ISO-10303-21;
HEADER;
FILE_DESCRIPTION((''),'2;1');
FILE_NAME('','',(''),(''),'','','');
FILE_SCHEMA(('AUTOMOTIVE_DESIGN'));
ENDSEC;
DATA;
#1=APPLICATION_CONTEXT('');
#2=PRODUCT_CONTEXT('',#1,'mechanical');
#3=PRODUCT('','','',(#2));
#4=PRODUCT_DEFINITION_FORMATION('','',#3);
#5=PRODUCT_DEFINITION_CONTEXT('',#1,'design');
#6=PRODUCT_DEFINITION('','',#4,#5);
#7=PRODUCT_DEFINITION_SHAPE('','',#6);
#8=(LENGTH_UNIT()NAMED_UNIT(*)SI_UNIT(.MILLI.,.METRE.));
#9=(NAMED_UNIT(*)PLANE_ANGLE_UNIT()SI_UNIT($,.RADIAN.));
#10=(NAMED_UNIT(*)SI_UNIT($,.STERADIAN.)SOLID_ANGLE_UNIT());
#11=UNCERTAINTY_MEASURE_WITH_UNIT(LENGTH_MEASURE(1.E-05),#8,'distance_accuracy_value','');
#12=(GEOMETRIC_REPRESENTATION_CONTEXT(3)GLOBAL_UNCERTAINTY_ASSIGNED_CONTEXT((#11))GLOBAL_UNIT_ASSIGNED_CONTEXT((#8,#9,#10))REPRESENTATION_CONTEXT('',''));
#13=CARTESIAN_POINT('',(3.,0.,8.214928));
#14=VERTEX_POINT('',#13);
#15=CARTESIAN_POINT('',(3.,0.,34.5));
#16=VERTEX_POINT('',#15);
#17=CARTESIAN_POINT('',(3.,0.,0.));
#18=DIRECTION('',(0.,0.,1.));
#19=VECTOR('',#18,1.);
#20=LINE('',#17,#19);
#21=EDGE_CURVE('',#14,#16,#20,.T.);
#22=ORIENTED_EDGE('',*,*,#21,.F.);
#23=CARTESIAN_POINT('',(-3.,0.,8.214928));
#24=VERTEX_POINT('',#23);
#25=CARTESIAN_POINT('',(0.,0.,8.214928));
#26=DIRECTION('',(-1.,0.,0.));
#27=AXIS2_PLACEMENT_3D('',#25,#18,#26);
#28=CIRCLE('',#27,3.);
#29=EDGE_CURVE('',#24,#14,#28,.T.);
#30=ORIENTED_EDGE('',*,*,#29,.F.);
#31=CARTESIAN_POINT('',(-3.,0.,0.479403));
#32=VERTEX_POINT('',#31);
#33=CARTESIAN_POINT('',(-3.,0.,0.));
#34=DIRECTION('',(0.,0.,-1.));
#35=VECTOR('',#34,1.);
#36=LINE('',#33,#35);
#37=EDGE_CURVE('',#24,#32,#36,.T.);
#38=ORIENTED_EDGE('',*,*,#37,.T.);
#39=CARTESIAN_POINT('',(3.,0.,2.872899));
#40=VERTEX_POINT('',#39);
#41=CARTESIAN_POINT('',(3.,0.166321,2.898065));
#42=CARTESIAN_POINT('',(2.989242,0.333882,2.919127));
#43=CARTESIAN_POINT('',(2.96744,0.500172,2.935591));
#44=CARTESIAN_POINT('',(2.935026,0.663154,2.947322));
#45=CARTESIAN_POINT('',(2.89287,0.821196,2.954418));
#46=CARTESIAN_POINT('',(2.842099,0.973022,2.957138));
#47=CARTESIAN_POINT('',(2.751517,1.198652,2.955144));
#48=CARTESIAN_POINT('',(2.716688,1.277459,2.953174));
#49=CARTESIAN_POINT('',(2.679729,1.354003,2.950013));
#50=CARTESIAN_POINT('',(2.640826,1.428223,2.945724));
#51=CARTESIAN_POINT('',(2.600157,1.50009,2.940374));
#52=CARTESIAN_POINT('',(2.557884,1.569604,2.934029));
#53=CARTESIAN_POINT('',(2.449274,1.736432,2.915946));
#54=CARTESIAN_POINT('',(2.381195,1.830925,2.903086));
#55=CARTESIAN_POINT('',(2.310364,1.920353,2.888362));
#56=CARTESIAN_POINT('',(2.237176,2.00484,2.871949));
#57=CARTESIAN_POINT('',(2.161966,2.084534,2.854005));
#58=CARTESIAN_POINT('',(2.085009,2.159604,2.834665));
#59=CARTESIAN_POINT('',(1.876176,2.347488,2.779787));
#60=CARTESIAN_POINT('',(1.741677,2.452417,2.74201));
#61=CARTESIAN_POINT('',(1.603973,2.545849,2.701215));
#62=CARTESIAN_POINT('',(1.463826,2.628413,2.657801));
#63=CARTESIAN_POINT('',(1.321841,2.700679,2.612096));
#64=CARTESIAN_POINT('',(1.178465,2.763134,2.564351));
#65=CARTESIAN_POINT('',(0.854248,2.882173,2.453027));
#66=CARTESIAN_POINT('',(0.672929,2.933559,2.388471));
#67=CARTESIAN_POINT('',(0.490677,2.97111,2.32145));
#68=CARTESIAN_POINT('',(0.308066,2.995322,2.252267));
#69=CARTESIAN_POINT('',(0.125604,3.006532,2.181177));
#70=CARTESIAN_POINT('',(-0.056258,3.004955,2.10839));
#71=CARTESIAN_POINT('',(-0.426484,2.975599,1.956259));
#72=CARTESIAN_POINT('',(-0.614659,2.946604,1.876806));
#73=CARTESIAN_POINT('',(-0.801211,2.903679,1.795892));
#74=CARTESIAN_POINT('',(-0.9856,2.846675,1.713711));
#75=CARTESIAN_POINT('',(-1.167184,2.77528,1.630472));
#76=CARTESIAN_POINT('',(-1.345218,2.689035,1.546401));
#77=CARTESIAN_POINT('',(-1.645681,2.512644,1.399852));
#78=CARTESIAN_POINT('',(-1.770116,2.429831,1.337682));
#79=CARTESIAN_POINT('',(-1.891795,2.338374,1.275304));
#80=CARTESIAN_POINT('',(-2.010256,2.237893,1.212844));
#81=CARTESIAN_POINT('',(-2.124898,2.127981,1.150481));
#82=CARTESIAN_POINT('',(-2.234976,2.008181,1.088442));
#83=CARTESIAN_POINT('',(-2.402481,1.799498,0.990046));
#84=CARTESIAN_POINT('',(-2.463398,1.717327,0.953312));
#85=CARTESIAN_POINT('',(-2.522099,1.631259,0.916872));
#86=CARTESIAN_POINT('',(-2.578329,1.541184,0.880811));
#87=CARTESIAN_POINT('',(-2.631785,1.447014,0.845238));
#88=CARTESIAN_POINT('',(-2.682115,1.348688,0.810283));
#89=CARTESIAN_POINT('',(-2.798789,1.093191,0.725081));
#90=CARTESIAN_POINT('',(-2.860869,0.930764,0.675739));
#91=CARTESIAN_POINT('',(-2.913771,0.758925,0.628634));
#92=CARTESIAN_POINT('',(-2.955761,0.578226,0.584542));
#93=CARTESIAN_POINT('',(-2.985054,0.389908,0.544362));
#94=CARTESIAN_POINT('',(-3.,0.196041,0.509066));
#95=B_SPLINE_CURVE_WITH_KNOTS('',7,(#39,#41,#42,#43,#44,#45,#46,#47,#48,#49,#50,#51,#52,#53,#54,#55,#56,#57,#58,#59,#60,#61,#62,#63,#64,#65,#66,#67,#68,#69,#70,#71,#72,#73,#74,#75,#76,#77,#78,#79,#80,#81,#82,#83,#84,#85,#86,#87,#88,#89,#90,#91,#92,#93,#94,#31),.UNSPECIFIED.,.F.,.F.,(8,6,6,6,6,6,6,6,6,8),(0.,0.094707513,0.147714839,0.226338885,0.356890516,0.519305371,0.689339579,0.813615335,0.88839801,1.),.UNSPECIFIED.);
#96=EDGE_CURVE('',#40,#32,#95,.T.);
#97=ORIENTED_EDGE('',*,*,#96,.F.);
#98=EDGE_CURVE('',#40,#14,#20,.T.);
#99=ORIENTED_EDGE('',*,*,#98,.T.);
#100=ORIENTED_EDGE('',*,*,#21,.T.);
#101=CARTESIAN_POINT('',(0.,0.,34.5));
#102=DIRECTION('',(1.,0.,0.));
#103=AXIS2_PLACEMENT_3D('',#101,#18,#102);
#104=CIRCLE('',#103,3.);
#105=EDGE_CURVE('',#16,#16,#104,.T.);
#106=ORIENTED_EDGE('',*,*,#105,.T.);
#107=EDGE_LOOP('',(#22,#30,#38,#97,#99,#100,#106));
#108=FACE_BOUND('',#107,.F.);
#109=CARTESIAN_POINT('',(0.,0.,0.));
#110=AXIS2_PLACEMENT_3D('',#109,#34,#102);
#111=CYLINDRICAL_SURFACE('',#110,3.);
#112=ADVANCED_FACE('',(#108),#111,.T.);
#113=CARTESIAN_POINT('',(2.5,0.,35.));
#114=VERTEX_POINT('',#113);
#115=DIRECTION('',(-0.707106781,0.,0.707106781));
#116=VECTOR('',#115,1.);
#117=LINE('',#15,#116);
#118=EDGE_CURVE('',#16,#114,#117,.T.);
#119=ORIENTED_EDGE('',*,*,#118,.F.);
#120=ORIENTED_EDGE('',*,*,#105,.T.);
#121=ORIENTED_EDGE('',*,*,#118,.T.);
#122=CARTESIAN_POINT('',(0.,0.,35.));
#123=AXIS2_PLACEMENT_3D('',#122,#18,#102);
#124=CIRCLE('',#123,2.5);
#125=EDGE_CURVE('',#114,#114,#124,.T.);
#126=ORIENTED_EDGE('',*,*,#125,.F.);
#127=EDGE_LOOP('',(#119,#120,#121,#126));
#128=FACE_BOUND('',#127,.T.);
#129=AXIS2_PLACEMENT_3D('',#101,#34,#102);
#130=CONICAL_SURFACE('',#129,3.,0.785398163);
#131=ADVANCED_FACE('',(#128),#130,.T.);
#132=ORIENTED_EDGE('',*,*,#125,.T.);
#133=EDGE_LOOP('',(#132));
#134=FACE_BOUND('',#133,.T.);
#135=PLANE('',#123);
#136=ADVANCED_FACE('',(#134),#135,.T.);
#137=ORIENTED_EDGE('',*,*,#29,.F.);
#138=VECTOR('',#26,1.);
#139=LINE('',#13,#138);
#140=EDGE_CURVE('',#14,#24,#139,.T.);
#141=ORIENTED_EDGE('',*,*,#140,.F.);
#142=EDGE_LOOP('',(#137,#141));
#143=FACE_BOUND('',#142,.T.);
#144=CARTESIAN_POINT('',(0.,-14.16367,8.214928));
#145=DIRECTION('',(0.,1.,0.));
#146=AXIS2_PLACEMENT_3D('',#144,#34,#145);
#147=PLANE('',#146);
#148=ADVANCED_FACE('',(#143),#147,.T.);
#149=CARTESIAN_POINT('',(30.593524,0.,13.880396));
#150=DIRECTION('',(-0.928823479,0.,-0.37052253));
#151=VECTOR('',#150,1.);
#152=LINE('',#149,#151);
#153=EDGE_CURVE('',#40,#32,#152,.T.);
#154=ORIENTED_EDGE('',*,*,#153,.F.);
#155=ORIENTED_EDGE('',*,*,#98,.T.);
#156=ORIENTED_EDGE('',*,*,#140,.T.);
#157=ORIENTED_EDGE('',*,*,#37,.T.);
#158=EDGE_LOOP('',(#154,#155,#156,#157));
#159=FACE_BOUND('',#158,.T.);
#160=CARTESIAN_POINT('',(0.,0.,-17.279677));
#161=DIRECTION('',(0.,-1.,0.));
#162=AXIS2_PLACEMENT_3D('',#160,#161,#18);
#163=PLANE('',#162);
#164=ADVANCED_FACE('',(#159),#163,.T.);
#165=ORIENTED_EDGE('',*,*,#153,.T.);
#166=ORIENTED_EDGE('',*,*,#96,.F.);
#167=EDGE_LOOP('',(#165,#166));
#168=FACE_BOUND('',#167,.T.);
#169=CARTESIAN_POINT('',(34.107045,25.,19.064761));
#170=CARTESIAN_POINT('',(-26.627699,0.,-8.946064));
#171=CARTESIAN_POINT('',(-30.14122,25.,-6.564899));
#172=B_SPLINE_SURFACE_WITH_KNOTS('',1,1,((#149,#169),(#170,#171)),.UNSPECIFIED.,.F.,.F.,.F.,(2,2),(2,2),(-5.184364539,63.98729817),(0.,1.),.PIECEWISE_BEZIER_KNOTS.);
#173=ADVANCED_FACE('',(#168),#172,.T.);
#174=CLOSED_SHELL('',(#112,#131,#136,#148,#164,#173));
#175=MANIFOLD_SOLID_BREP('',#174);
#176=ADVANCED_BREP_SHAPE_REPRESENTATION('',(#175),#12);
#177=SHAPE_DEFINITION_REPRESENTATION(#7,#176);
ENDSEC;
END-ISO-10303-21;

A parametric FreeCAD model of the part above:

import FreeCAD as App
import Part
import Sketcher
from FreeCAD import Vector


def edges_at(feature, points):
    """Names of the edges that pass closest to the given points."""
    edges = feature.Shape.Edges
    near = lambda p: min(range(len(edges)), key=lambda i: edges[i].distToShape(Part.Vertex(*p))[0])
    return sorted({f"Edge{near(p) + 1}" for p in points})


def add_polygon(sketch, points):
    """Adds a closed chain of lines whose ends are joined by coincident constraints."""
    first, n = sketch.GeometryCount, len(points)
    for a, b in zip(points, points[1:] + points[:1]):
        sketch.addGeometry(Part.LineSegment(App.Vector(*a, 0), App.Vector(*b, 0)), False)
    for i in range(n):
        sketch.addConstraint(Sketcher.Constraint("Coincident", first + i, 2, first + (i + 1) % n, 1))

doc = App.newDocument("Part")
body = doc.addObject("PartDesign::Body", "Body")

sketch1 = body.newObject("Sketcher::SketchObject", "Sketch")
sketch1.AttachmentSupport = (doc.getObject("XY_Plane"), [""])
sketch1.MapMode = "FlatFace"
sketch1.addGeometry(Part.Circle(Vector(0, 0, 0), Vector(0, 0, 1), 3), False)
sketch1.addConstraint([
    Sketcher.Constraint("Coincident", 0, 3, -1, 1),
    Sketcher.Constraint("Diameter", 0, 6.0),
])
pad1 = body.newObject("PartDesign::Pad", "Pad")
pad1.Profile = sketch1
pad1.Length = 35
doc.recompute()

chamfer = body.newObject("PartDesign::Chamfer", "Chamfer")
chamfer.Base = (pad1, edges_at(pad1, [(-3, 0, 35)]))
chamfer.Size = 0.5

sketch2 = body.newObject("Sketcher::SketchObject", "Sketch001")
sketch2.AttachmentSupport = (doc.getObject("YZ_Plane"), [""])
sketch2.MapMode = "FlatFace"
add_polygon(sketch2, [(-14.16367, 8.214928), (-14.16367, -17.279677), (0, -17.279677), (0, 8.214928)])
sketch2.addConstraint([
    Sketcher.Constraint("Vertical", 0),
    Sketcher.Constraint("Horizontal", 1),
    Sketcher.Constraint("Vertical", 2),
    Sketcher.Constraint("Horizontal", 3),
    Sketcher.Constraint("PointOnObject", 1, 2, -2),
    Sketcher.Constraint("DistanceX", 1, 1, 1, 2, 14.16367),
    Sketcher.Constraint("DistanceY", 0, 2, 0, 1, 25.494605),
    Sketcher.Constraint("DistanceY", -1, 1, 2, 2, 8.214928),
])
pocket1 = body.newObject("PartDesign::Pocket", "Pocket")
pocket1.Profile = sketch2
pocket1.Type = "ThroughAll"
pocket1.Midplane = True

sketch3 = body.newObject("Sketcher::SketchObject", "Sketch002")
sketch3.AttachmentSupport = (doc.getObject("XZ_Plane"), [""])
sketch3.MapMode = "FlatFace"
add_polygon(sketch3, [(30.593524, -28.893884), (30.593524, 13.880396), (-26.627699, -8.946064), (-26.627699, -10.481115)])
sketch3.addConstraint([
    Sketcher.Constraint("Vertical", 0),
    Sketcher.Constraint("Vertical", 2),
    Sketcher.Constraint("DistanceY", 0, 1, 0, 2, 42.774281),
    Sketcher.Constraint("DistanceY", 2, 2, 2, 1, 1.535052),
    Sketcher.Constraint("DistanceX", 1, 2, -1, 1, 26.627699),
    Sketcher.Constraint("DistanceY", 1, 2, 0, 2, 22.82646),
    Sketcher.Constraint("Distance", 1, 61.606133),
    Sketcher.Constraint("DistanceY", -1, 1, 0, 2, 13.880396),
])
pocket2 = body.newObject("PartDesign::Pocket", "Pocket001")
pocket2.Profile = sketch3
pocket2.Length = 25
pocket2.TaperAngle = 8

doc.recompute()
